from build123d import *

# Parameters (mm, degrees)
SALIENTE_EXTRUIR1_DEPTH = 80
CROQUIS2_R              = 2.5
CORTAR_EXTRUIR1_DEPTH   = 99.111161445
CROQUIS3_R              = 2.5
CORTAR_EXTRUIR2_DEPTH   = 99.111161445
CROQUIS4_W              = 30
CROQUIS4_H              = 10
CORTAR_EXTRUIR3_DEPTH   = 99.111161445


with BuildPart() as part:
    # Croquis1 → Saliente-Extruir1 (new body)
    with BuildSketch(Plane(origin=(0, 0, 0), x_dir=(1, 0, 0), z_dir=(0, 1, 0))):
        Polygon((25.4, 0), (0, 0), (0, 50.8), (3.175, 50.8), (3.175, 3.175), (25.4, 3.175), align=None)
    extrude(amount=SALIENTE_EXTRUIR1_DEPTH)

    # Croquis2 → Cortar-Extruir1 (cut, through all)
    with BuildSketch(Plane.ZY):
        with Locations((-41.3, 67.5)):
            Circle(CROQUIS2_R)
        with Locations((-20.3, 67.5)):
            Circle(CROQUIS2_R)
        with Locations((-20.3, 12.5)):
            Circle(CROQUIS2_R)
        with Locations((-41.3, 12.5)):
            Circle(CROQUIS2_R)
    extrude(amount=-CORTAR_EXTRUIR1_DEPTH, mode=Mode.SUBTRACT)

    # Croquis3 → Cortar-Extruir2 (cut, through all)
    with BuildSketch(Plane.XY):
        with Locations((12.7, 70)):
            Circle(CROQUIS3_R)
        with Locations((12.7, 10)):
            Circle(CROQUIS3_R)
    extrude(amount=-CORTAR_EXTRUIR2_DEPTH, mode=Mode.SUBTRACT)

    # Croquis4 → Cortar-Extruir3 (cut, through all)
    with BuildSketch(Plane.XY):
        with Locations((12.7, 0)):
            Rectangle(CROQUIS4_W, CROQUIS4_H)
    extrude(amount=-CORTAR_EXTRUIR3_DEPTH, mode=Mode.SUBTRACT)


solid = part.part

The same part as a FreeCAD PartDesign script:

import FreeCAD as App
import Part
import Sketcher

V = App.Vector
Q = App.Units.Quantity


def add_polygon(sketch, points):
    """Adds a closed chain of lines whose ends are joined by coincident constraints."""
    first, n = sketch.GeometryCount, len(points)
    for a, b in zip(points, points[1:] + points[:1]):
        sketch.addGeometry(Part.LineSegment(App.Vector(*a, 0), App.Vector(*b, 0)), False)
    for i in range(n):
        sketch.addConstraint(Sketcher.Constraint("Coincident", first + i, 2, first + (i + 1) % n, 1))

doc = App.newDocument("Part")
params = doc.addObject("Spreadsheet::Sheet", "Params")
for row, (alias, value) in enumerate([
    ("sketch1_width", "1 in"),
    ("sketch1_height", "2 in"),
    ("sketch1_width2", "0.875 in"),
    ("pad1_length", "80 mm"),
], start=1):
    params.set(f"A{row}", alias)
    params.set(f"B{row}", "=" + value)
    params.setAlias(f"B{row}", alias)

body = doc.addObject("PartDesign::Body", "Body")

# Sketch on XZ plane
sketch1 = body.newObject("Sketcher::SketchObject", "Sketch")
sketch1.AttachmentSupport = (doc.getObject("XZ_Plane"), [""])
sketch1.MapMode = "FlatFace"
add_polygon(sketch1, [(0, 0), (25.4, 0), (25.4, -3.2), (3.2, -3.2), (3.2, -50.8), (0, -50.8)])  # lines 0-5
sketch1.addConstraint([
    Sketcher.Constraint("Horizontal", 0),
    Sketcher.Constraint("Vertical", 1),
    Sketcher.Constraint("Horizontal", 2),
    Sketcher.Constraint("Vertical", 3),
    Sketcher.Constraint("Horizontal", 4),
    Sketcher.Constraint("Vertical", 5),
    Sketcher.Constraint("Coincident", 5, 2, -1, 1),
    Sketcher.Constraint("Equal", 4, 1),
    Sketcher.Constraint("DistanceX", 0, 1, 0, 2, Q("1 in")),
    Sketcher.Constraint("DistanceY", 5, 1, 5, 2, Q("2 in")),
    Sketcher.Constraint("DistanceX", 2, 2, 2, 1, Q("0.875 in")),
])
sketch1.setExpression("Constraints[14]", "Params.sketch1_width")
sketch1.setExpression("Constraints[15]", "Params.sketch1_height")
sketch1.setExpression("Constraints[16]", "Params.sketch1_width2")
pad1 = body.newObject("PartDesign::Pad", "Pad")
pad1.Profile = sketch1
pad1.setExpression("Length", "Params.pad1_length")
pad1.Reversed = True

# Sketch on YZ plane
sketch2 = body.newObject("Sketcher::SketchObject", "Sketch001")
sketch2.AttachmentSupport = (doc.getObject("YZ_Plane"), [""])
sketch2.MapMode = "FlatFace"
sketch2.addGeometry([
    Part.Circle(V(67.5, -41.3, 0), V(0, 0, 1), 2.5),
    Part.Circle(V(67.5, -20.3, 0), V(0, 0, 1), 2.5),
    Part.Circle(V(12.5, -20.3, 0), V(0, 0, 1), 2.5),
    Part.Circle(V(12.5, -41.3, 0), V(0, 0, 1), 2.5),
], False)
sketch2.addConstraint([
    Sketcher.Constraint("Equal", 0, 1),
    Sketcher.Constraint("Equal", 1, 2),
    Sketcher.Constraint("Equal", 2, 3),
    Sketcher.Constraint("Horizontal", 1, 3, 2, 3),
    Sketcher.Constraint("Horizontal", 0, 3, 3, 3),
    Sketcher.Constraint("Vertical", 0, 3, 1, 3),
    Sketcher.Constraint("Vertical", 2, 3, 3, 3),
    Sketcher.Constraint("Diameter", 0, 5.0),
    Sketcher.Constraint("DistanceX", -1, 1, 0, 3, 67.5),
    Sketcher.Constraint("DistanceY", 0, 3, -1, 1, 41.3),
    Sketcher.Constraint("DistanceY", 1, 3, -1, 1, 20.3),
    Sketcher.Constraint("DistanceX", -1, 1, 2, 3, 12.5),
])
pocket1 = body.newObject("PartDesign::Pocket", "Pocket")
pocket1.Profile = sketch2
pocket1.Type = "ThroughAll"
pocket1.Reversed = True

# Sketch on XY plane
sketch3 = body.newObject("Sketcher::SketchObject", "Sketch002")
sketch3.AttachmentSupport = (doc.getObject("XY_Plane"), [""])
sketch3.MapMode = "FlatFace"
sketch3.addGeometry([
    Part.Circle(V(12.7, 70, 0), V(0, 0, 1), 2.5),
    Part.Circle(V(12.7, 10, 0), V(0, 0, 1), 2.5),
], False)
sketch3.addConstraint([
    Sketcher.Constraint("Equal", 0, 1),
    Sketcher.Constraint("Vertical", 0, 3, 1, 3),
    Sketcher.Constraint("DistanceX", -1, 1, 0, 3, Q("0.5 in")),
    Sketcher.Constraint("Diameter", 0, 5.0),
    Sketcher.Constraint("DistanceY", -1, 1, 0, 3, 70.0),
    Sketcher.Constraint("DistanceY", -1, 1, 1, 3, 10.0),
])
pocket2 = body.newObject("PartDesign::Pocket", "Pocket001")
pocket2.Profile = sketch3
pocket2.Type = "ThroughAll"

# Sketch on XY plane
sketch4 = body.newObject("Sketcher::SketchObject", "Sketch003")
sketch4.AttachmentSupport = (doc.getObject("XY_Plane"), [""])
sketch4.MapMode = "FlatFace"
add_polygon(sketch4, [(-2, 5), (-2, -5), (28, -5), (28, 5)])  # lines 0-3
sketch4.addConstraint([
    Sketcher.Constraint("Vertical", 0),
    Sketcher.Constraint("Horizontal", 1),
    Sketcher.Constraint("Vertical", 2),
    Sketcher.Constraint("Horizontal", 3),
    Sketcher.Constraint("DistanceX", 1, 1, 1, 2, 30.0),
    Sketcher.Constraint("DistanceY", 0, 2, 0, 1, 10.0),
    Sketcher.Constraint("DistanceX", 0, 2, -1, 1, 2.3),
    Sketcher.Constraint("DistanceY", 0, 2, -1, 1, 5.0),
])
pocket3 = body.newObject("PartDesign::Pocket", "Pocket002")
pocket3.Profile = sketch4
pocket3.Type = "ThroughAll"

doc.recompute()
